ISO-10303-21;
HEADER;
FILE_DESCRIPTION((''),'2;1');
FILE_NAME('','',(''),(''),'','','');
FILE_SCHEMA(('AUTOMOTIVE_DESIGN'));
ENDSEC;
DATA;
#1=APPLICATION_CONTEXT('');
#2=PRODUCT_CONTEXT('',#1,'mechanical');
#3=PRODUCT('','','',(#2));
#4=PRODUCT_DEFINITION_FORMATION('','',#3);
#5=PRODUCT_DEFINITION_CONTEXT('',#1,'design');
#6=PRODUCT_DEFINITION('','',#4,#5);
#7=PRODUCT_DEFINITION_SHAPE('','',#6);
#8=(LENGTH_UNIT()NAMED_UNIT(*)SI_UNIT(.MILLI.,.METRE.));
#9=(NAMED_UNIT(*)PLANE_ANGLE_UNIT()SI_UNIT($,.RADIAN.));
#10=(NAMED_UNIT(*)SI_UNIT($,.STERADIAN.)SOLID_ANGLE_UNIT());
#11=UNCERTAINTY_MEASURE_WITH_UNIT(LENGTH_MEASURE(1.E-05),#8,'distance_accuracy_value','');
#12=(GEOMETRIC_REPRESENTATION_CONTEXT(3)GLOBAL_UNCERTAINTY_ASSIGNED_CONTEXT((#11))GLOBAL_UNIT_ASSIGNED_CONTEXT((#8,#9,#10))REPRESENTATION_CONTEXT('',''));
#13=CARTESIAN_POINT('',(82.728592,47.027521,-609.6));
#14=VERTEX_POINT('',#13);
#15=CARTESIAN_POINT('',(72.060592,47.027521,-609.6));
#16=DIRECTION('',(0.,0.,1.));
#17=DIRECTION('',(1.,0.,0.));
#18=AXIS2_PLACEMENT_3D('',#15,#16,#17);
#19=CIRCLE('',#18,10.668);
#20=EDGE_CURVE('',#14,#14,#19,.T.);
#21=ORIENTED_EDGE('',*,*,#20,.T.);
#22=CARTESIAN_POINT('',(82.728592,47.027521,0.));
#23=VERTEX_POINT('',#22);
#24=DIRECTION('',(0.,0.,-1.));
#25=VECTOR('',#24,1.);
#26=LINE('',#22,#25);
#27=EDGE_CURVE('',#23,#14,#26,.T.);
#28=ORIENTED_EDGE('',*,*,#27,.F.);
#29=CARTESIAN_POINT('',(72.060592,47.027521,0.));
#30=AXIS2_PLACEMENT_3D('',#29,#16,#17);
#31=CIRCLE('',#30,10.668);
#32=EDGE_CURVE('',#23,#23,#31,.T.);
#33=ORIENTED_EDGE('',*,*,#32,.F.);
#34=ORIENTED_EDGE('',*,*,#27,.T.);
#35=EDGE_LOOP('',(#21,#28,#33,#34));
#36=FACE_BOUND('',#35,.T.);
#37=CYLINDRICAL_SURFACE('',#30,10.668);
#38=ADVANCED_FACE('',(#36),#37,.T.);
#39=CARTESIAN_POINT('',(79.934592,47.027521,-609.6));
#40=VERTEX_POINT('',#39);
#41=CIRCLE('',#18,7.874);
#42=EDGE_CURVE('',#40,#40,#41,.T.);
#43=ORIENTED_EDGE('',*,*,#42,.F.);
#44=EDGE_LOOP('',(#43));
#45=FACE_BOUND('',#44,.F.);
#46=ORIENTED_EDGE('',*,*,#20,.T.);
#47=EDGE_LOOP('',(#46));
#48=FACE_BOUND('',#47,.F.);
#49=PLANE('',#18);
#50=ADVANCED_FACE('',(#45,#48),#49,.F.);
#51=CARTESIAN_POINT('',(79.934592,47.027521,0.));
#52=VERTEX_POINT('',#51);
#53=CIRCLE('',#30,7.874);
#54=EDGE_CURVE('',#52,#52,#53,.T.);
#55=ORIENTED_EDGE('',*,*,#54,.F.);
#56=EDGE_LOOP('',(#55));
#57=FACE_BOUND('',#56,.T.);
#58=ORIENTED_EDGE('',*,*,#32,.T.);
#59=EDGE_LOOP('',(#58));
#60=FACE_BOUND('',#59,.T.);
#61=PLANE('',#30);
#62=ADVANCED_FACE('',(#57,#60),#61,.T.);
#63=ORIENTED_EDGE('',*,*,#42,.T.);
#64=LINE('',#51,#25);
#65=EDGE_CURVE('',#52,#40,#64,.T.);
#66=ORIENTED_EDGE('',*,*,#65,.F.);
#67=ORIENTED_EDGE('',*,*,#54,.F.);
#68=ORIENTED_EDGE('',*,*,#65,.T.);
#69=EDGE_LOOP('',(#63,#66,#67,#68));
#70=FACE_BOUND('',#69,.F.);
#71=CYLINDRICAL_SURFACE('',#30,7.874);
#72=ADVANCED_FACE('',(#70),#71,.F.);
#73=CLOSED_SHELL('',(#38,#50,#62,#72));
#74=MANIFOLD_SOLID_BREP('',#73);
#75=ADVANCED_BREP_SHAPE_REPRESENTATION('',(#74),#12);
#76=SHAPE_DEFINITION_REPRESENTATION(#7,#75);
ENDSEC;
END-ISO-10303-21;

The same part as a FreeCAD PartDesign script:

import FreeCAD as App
import Part
import Sketcher
from FreeCAD import Vector
Q = App.Units.Quantity

doc = App.newDocument("Part")
params = doc.addObject("Spreadsheet::Sheet", "Params")
for row, (alias, value) in enumerate([
    ("sketch1_diameter", "0.84 in"),
    ("sketch1_diameter2", "0.62 in"),
    ("pad1_length", "24 in"),
], start=1):
    params.set(f"A{row}", alias)
    params.set(f"B{row}", "=" + value)
    params.setAlias(f"B{row}", alias)

body = doc.addObject("PartDesign::Body", "Body")

sketch1 = body.newObject("Sketcher::SketchObject", "Sketch")
sketch1.AttachmentSupport = (doc.getObject("XY_Plane"), [""])
sketch1.MapMode = "FlatFace"
sketch1.addGeometry([
    Part.Circle(Vector(72, 47, 0), Vector(0, 0, 1), 11),
    Part.Circle(Vector(72, 47, 0), Vector(0, 0, 1), 8),
], False)
sketch1.addConstraint([
    Sketcher.Constraint("Coincident", 1, 3, 0, 3),
    Sketcher.Constraint("Diameter", 0, Q("0.84 in")),
    Sketcher.Constraint("Diameter", 1, Q("0.62 in")),
    Sketcher.Constraint("DistanceX", -1, 1, 0, 3, 72.060592),
    Sketcher.Constraint("DistanceY", -1, 1, 0, 3, 47.027521),
])
sketch1.setExpression("Constraints[1]", "Params.sketch1_diameter")
sketch1.setExpression("Constraints[2]", "Params.sketch1_diameter2")
pad1 = body.newObject("PartDesign::Pad", "Pad")
pad1.Profile = sketch1
pad1.setExpression("Length", "Params.pad1_length")
pad1.Reversed = True

doc.recompute()
